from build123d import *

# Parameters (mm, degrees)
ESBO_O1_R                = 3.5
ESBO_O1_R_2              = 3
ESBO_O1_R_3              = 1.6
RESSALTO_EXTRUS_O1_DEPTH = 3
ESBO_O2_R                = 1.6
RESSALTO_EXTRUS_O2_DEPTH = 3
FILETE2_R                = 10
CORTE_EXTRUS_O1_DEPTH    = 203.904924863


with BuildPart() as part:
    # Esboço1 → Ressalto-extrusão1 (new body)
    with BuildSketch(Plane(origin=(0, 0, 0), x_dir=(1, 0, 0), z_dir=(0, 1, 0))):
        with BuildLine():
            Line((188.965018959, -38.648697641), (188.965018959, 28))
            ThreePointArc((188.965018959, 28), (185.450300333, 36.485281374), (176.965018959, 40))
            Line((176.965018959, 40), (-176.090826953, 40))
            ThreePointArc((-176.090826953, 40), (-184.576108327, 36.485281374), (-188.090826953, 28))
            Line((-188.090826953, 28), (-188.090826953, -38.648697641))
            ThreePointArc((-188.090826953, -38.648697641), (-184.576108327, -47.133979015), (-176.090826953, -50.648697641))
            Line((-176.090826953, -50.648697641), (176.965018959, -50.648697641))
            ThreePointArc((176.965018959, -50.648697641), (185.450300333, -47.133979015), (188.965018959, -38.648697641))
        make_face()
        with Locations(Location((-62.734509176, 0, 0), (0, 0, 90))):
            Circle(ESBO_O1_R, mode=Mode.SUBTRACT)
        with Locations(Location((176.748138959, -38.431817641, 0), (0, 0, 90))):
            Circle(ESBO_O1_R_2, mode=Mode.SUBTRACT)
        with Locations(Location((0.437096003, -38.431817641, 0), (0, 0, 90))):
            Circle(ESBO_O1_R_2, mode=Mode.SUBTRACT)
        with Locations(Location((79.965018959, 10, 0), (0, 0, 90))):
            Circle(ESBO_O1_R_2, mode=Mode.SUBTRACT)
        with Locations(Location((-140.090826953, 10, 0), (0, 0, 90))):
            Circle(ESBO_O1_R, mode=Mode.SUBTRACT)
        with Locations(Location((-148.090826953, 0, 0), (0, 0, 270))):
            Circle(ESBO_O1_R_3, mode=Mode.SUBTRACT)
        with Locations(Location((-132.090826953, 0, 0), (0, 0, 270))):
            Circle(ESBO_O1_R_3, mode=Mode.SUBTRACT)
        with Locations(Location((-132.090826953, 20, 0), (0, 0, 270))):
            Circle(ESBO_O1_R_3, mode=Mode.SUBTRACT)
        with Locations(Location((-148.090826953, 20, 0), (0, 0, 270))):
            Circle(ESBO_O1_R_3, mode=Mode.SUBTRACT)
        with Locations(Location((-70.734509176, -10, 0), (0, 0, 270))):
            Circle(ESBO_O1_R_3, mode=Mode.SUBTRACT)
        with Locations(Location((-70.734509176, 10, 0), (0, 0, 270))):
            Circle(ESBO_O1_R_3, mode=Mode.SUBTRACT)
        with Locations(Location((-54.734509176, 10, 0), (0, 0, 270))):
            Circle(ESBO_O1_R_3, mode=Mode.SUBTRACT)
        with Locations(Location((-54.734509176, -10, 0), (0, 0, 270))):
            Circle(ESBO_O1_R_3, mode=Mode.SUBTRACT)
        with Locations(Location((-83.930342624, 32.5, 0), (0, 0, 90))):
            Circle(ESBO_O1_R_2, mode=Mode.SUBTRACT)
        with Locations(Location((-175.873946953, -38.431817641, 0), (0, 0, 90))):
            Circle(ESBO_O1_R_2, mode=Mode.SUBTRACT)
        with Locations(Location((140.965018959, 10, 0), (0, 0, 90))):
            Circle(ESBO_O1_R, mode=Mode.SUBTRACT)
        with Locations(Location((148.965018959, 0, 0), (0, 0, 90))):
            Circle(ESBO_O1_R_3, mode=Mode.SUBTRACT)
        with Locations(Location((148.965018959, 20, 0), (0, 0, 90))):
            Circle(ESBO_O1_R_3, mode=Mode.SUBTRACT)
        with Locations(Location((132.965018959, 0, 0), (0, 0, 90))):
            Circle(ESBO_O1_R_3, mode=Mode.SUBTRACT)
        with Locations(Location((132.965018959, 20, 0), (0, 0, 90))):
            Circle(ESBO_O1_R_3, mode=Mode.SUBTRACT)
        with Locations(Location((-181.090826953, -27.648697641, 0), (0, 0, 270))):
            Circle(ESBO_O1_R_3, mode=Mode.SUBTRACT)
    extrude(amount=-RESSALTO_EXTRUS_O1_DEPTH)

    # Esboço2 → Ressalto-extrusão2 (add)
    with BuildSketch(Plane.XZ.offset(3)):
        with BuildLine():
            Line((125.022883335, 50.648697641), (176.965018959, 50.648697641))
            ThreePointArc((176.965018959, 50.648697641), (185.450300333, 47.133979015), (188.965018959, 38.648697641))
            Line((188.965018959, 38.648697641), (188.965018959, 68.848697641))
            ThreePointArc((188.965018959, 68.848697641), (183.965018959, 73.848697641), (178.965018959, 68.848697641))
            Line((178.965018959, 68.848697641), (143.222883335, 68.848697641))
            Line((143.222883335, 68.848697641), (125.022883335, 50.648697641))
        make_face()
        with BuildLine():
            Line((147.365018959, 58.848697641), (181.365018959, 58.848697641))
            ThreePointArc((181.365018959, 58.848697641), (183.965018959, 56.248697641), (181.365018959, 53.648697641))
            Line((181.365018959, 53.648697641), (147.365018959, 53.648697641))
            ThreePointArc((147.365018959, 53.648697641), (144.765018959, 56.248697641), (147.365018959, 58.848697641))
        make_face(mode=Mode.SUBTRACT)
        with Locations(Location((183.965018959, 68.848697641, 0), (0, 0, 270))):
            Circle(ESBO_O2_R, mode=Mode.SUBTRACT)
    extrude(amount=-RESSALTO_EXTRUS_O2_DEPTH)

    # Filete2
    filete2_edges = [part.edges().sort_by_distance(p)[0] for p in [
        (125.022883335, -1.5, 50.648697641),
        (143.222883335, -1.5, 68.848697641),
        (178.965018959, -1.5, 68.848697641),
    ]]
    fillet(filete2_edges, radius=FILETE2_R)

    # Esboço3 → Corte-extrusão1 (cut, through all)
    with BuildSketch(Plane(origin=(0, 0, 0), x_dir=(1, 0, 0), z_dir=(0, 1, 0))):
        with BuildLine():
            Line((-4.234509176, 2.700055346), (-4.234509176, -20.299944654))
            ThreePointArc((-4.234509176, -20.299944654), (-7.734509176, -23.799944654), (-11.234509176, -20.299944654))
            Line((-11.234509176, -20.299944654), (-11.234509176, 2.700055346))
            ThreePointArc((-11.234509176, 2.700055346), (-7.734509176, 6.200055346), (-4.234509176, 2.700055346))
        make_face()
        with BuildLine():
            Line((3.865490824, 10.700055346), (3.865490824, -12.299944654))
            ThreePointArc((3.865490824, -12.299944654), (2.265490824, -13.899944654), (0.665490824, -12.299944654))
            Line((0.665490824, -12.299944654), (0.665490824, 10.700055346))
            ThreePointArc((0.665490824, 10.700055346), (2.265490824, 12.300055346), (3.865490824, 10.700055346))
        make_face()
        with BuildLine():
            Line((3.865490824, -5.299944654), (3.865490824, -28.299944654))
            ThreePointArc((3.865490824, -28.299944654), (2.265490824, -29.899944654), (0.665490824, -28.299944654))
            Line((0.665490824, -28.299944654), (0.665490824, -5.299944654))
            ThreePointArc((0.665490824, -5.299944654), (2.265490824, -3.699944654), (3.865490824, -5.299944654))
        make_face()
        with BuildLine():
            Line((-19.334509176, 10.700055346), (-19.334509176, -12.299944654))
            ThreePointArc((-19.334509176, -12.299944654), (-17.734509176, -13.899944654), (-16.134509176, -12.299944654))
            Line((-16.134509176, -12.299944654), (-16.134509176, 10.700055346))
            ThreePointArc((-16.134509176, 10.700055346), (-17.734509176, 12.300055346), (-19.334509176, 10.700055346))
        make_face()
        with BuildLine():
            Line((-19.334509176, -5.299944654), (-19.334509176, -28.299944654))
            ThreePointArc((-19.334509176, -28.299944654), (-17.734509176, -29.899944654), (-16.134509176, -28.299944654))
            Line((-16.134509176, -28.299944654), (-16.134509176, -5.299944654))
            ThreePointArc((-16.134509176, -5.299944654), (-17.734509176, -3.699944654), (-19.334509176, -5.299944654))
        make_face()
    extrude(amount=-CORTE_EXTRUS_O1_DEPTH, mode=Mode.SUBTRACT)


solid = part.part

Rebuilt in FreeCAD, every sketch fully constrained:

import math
import FreeCAD as App
import Part
import Sketcher
Q = App.Units.Quantity


def edges_at(feature, points):
    """Names of the edges that pass closest to the given points."""
    edges = feature.Shape.Edges
    near = lambda p: min(range(len(edges)), key=lambda i: edges[i].distToShape(Part.Vertex(*p))[0])
    return sorted({f"Edge{near(p) + 1}" for p in points})

doc = App.newDocument("Part")
body = doc.addObject("PartDesign::Body", "Body")

# Sketch on XZ plane
sketch1 = body.newObject("Sketcher::SketchObject", "Sketch")
sketch1.AttachmentSupport = (doc.getObject("XZ_Plane"), [""])
sketch1.MapMode = "FlatFace"
sketch1.addGeometry(Part.LineSegment(App.Vector(189, 38.6, 0), App.Vector(189, -28, 0)), False)
sketch1.addGeometry(Part.ArcOfCircle(Part.Circle(App.Vector(177, -28, 0), App.Vector(0, 0, 1), 12), math.radians(-90), math.radians(0)), False)
sketch1.addGeometry(Part.LineSegment(App.Vector(177, -40, 0), App.Vector(-176.1, -40, 0)), False)
sketch1.addGeometry(Part.ArcOfCircle(Part.Circle(App.Vector(-176.1, -28, 0), App.Vector(0, 0, 1), 12), math.radians(-180), math.radians(-90)), False)
sketch1.addGeometry(Part.LineSegment(App.Vector(-188.1, -28, 0), App.Vector(-188.1, 38.6, 0)), False)
sketch1.addGeometry(Part.ArcOfCircle(Part.Circle(App.Vector(-176.1, 38.6, 0), App.Vector(0, 0, 1), 12), math.radians(90), math.radians(180)), False)
sketch1.addGeometry(Part.LineSegment(App.Vector(-176.1, 50.6, 0), App.Vector(177, 50.6, 0)), False)
sketch1.addGeometry(Part.ArcOfCircle(Part.Circle(App.Vector(177, 38.6, 0), App.Vector(0, 0, 1), 12), math.radians(0), math.radians(90)), False)
sketch1.addGeometry(Part.Circle(App.Vector(-175.9, 38.4, 0), App.Vector(0, 0, 1), 3), False)
sketch1.addGeometry(Part.Circle(App.Vector(-181.1, 27.6, 0), App.Vector(0, 0, 1), 1.6), False)
sketch1.addGeometry(Part.Circle(App.Vector(-70.7, 10, 0), App.Vector(0, 0, 1), 1.6), False)
sketch1.addGeometry(Part.Circle(App.Vector(-54.7, 10, 0), App.Vector(0, 0, 1), 1.6), False)
sketch1.addGeometry(Part.Circle(App.Vector(0.4, 38.4, 0), App.Vector(0, 0, 1), 3), False)
sketch1.addGeometry(Part.Circle(App.Vector(176.7, 38.4, 0), App.Vector(0, 0, 1), 3), False)
sketch1.addGeometry(Part.Circle(App.Vector(-148.1, 0, 0), App.Vector(0, 0, 1), 1.6), False)
sketch1.addGeometry(Part.Circle(App.Vector(-132.1, 0, 0), App.Vector(0, 0, 1), 1.6), False)
sketch1.addGeometry(Part.Circle(App.Vector(-140.1, -10, 0), App.Vector(0, 0, 1), 3.5), False)
sketch1.addGeometry(Part.Circle(App.Vector(-62.7, 0, 0), App.Vector(0, 0, 1), 3.5), False)
sketch1.addGeometry(Part.Circle(App.Vector(-70.7, -10, 0), App.Vector(0, 0, 1), 1.6), False)
sketch1.addGeometry(Part.Circle(App.Vector(-54.7, -10, 0), App.Vector(0, 0, 1), 1.6), False)
sketch1.addGeometry(Part.Circle(App.Vector(-148.1, -20, 0), App.Vector(0, 0, 1), 1.6), False)
sketch1.addGeometry(Part.Circle(App.Vector(-132.1, -20, 0), App.Vector(0, 0, 1), 1.6), False)
sketch1.addGeometry(Part.Circle(App.Vector(-83.9, -32.5, 0), App.Vector(0, 0, 1), 3), False)
sketch1.addGeometry(Part.Circle(App.Vector(80, -10, 0), App.Vector(0, 0, 1), 3), False)
sketch1.addGeometry(Part.Circle(App.Vector(133, 0, 0), App.Vector(0, 0, 1), 1.6), False)
sketch1.addGeometry(Part.Circle(App.Vector(149, 0, 0), App.Vector(0, 0, 1), 1.6), False)
sketch1.addGeometry(Part.Circle(App.Vector(141, -10, 0), App.Vector(0, 0, 1), 3.5), False)
sketch1.addGeometry(Part.Circle(App.Vector(133, -20, 0), App.Vector(0, 0, 1), 1.6), False)
sketch1.addGeometry(Part.Circle(App.Vector(149, -20, 0), App.Vector(0, 0, 1), 1.6), False)
sketch1.addConstraint(Sketcher.Constraint("Tangent", 0, 2, 1, 2))
sketch1.addConstraint(Sketcher.Constraint("Tangent", 1, 1, 2, 1))
sketch1.addConstraint(Sketcher.Constraint("Tangent", 2, 2, 3, 2))
sketch1.addConstraint(Sketcher.Constraint("Tangent", 3, 1, 4, 1))
sketch1.addConstraint(Sketcher.Constraint("Tangent", 4, 2, 5, 2))
sketch1.addConstraint(Sketcher.Constraint("Tangent", 5, 1, 6, 1))
sketch1.addConstraint(Sketcher.Constraint("Tangent", 6, 2, 7, 2))
sketch1.addConstraint(Sketcher.Constraint("Tangent", 7, 1, 0, 1))
sketch1.addConstraint(Sketcher.Constraint("Vertical", 0))
sketch1.addConstraint(Sketcher.Constraint("Horizontal", 2))
sketch1.addConstraint(Sketcher.Constraint("Vertical", 4))
sketch1.addConstraint(Sketcher.Constraint("Horizontal", 6))
sketch1.addConstraint(Sketcher.Constraint("Equal", 1, 3))
sketch1.addConstraint(Sketcher.Constraint("Equal", 3, 5))
sketch1.addConstraint(Sketcher.Constraint("Equal", 5, 7))
sketch1.addConstraint(Sketcher.Constraint("Equal", 9, 10))
sketch1.addConstraint(Sketcher.Constraint("Equal", 10, 11))
sketch1.addConstraint(Sketcher.Constraint("Equal", 8, 12))
sketch1.addConstraint(Sketcher.Constraint("Equal", 12, 13))
sketch1.addConstraint(Sketcher.Constraint("Equal", 11, 14))
sketch1.addConstraint(Sketcher.Constraint("Equal", 14, 15))
sketch1.addConstraint(Sketcher.Constraint("Equal", 16, 17))
sketch1.addConstraint(Sketcher.Constraint("Equal", 15, 18))
sketch1.addConstraint(Sketcher.Constraint("Equal", 18, 19))
sketch1.addConstraint(Sketcher.Constraint("Equal", 19, 20))
sketch1.addConstraint(Sketcher.Constraint("Equal", 20, 21))
sketch1.addConstraint(Sketcher.Constraint("Equal", 13, 22))
sketch1.addConstraint(Sketcher.Constraint("Equal", 22, 23))
sketch1.addConstraint(Sketcher.Constraint("Equal", 21, 24))
sketch1.addConstraint(Sketcher.Constraint("Equal", 24, 25))
sketch1.addConstraint(Sketcher.Constraint("Equal", 17, 26))
sketch1.addConstraint(Sketcher.Constraint("Equal", 25, 27))
sketch1.addConstraint(Sketcher.Constraint("Equal", 27, 28))
sketch1.addConstraint(Sketcher.Constraint("Symmetric", 10, 3, 18, 3, -1))
sketch1.addConstraint(Sketcher.Constraint("Symmetric", 11, 3, 19, 3, -1))
sketch1.addConstraint(Sketcher.Constraint("PointOnObject", 14, 3, -1))
sketch1.addConstraint(Sketcher.Constraint("PointOnObject", 15, 3, -1))
sketch1.addConstraint(Sketcher.Constraint("PointOnObject", 17, 3, -1))
sketch1.addConstraint(Sketcher.Constraint("PointOnObject", 24, 3, -1))
sketch1.addConstraint(Sketcher.Constraint("PointOnObject", 25, 3, -1))
sketch1.addConstraint(Sketcher.Constraint("Horizontal", 10, 3, 11, 3))
sketch1.addConstraint(Sketcher.Constraint("Horizontal", 8, 3, 12, 3))
sketch1.addConstraint(Sketcher.Constraint("Horizontal", 12, 3, 13, 3))
sketch1.addConstraint(Sketcher.Constraint("Horizontal", 16, 3, 18, 3))
sketch1.addConstraint(Sketcher.Constraint("Horizontal", 20, 3, 21, 3))
sketch1.addConstraint(Sketcher.Constraint("Horizontal", 19, 3, 23, 3))
sketch1.addConstraint(Sketcher.Constraint("Horizontal", 23, 3, 26, 3))
sketch1.addConstraint(Sketcher.Constraint("Horizontal", 21, 3, 27, 3))
sketch1.addConstraint(Sketcher.Constraint("Horizontal", 27, 3, 28, 3))
sketch1.addConstraint(Sketcher.Constraint("Vertical", 14, 3, 20, 3))
sketch1.addConstraint(Sketcher.Constraint("Vertical", 15, 3, 21, 3))
sketch1.addConstraint(Sketcher.Constraint("Vertical", 24, 3, 27, 3))
sketch1.addConstraint(Sketcher.Constraint("Vertical", 25, 3, 28, 3))
sketch1.addConstraint(Sketcher.Constraint("Diameter", 8, Q("6 mm")))
sketch1.addConstraint(Sketcher.Constraint("Diameter", 16, Q("7 mm")))
sketch1.addConstraint(Sketcher.Constraint("Radius", 1, Q("12 mm")))
sketch1.addConstraint(Sketcher.Constraint("Diameter", 9, Q("3.2 mm")))
sketch1.addConstraint(Sketcher.Constraint("DistanceY", 1, 3, -1, 1, Q("28 mm")))
sketch1.addConstraint(Sketcher.Constraint("DistanceY", -1, 1, 10, 3, Q("10 mm")))
sketch1.addConstraint(Sketcher.Constraint("DistanceY", 20, 3, -1, 1, Q("20 mm")))
sketch1.addConstraint(Sketcher.Constraint("DistanceX", 9, 3, 5, 3, Q("5 mm")))
sketch1.addConstraint(Sketcher.Constraint("DistanceY", 9, 3, 5, 3, Q("11 mm")))
sketch1.addConstraint(Sketcher.Constraint("DistanceX", 10, 3, 11, 3, Q("16 mm")))
sketch1.addConstraint(Sketcher.Constraint("DistanceX", 3, 3, 14, 3, Q("28 mm")))
sketch1.addConstraint(Sketcher.Constraint("DistanceX", 14, 3, 15, 3, Q("16 mm")))
sketch1.addConstraint(Sketcher.Constraint("DistanceX", 14, 3, 16, 3, Q("8 mm")))
sketch1.addConstraint(Sketcher.Constraint("DistanceX", 10, 3, 17, 3, Q("8 mm")))
sketch1.addConstraint(Sketcher.Constraint("DistanceX", 23, 3, 1, 3, Q("97 mm")))
sketch1.addConstraint(Sketcher.Constraint("DistanceX", 24, 3, 1, 3, Q("44 mm")))
sketch1.addConstraint(Sketcher.Constraint("DistanceX", 24, 3, 25, 3, Q("16 mm")))
sketch1.addConstraint(Sketcher.Constraint("DistanceX", 24, 3, 26, 3, Q("8 mm")))
sketch1.addConstraint(Sketcher.Constraint("DistanceY", 22, 3, -1, 1, Q("32.5 mm")))
sketch1.addConstraint(Sketcher.Constraint("DistanceX", 2, 2, 2, 1, Q("353.055846 mm")))
sketch1.addConstraint(Sketcher.Constraint("DistanceY", 0, 2, 0, 1, Q("66.648698 mm")))
sketch1.addConstraint(Sketcher.Constraint("DistanceX", -1, 1, 1, 3, Q("176.965019 mm")))
sketch1.addConstraint(Sketcher.Constraint("DistanceX", 10, 3, -1, 1, Q("70.734509 mm")))
sketch1.addConstraint(Sketcher.Constraint("DistanceX", -1, 1, 13, 3, Q("176.748139 mm")))
sketch1.addConstraint(Sketcher.Constraint("DistanceX", 5, 3, 8, 3, Q("0.21688 mm")))
sketch1.addConstraint(Sketcher.Constraint("DistanceY", 8, 3, 5, 3, Q("0.21688 mm")))
sketch1.addConstraint(Sketcher.Constraint("DistanceX", -1, 1, 12, 3, Q("0.437096 mm")))
sketch1.addConstraint(Sketcher.Constraint("DistanceX", 22, 3, -1, 1, Q("83.930343 mm")))
pad1 = body.newObject("PartDesign::Pad", "Pad")
pad1.Profile = sketch1
pad1.Length = 3

# Sketch on XZ plane
sketch2 = body.newObject("Sketcher::SketchObject", "Sketch001")
sketch2.AttachmentSupport = (doc.getObject("XZ_Plane"), [""])
sketch2.MapMode = "FlatFace"
sketch2.AttachmentOffset = App.Placement(App.Vector(0, 0, 3), App.Rotation())
sketch2.addGeometry(Part.LineSegment(App.Vector(125, 50.6, 0), App.Vector(177, 50.6, 0)), False)
sketch2.addGeometry(Part.ArcOfCircle(Part.Circle(App.Vector(177, 38.6, 0), App.Vector(0, 0, 1), 12), math.radians(0), math.radians(90)), False)
sketch2.addGeometry(Part.LineSegment(App.Vector(189, 38.6, 0), App.Vector(189, 68.8, 0)), False)
sketch2.addGeometry(Part.ArcOfCircle(Part.Circle(App.Vector(184, 68.8, 0), App.Vector(0, 0, 1), 5), math.radians(0), math.radians(180)), False)
sketch2.addGeometry(Part.LineSegment(App.Vector(179, 68.8, 0), App.Vector(143.2, 68.8, 0)), False)
sketch2.addGeometry(Part.LineSegment(App.Vector(143.2, 68.8, 0), App.Vector(125, 50.6, 0)), False)
sketch2.addGeometry(Part.ArcOfCircle(Part.Circle(App.Vector(147.4, 56.2, 0), App.Vector(0, 0, 1), 2.6), math.radians(90), math.radians(270)), False)
sketch2.addGeometry(Part.LineSegment(App.Vector(147.4, 58.8, 0), App.Vector(181.4, 58.8, 0)), False)
sketch2.addGeometry(Part.ArcOfCircle(Part.Circle(App.Vector(181.4, 56.2, 0), App.Vector(0, 0, 1), 2.6), math.radians(-90), math.radians(90)), False)
sketch2.addGeometry(Part.LineSegment(App.Vector(181.4, 53.6, 0), App.Vector(147.4, 53.6, 0)), False)
sketch2.addGeometry(Part.Circle(App.Vector(184, 68.8, 0), App.Vector(0, 0, 1), 1.6), False)
sketch2.addConstraint(Sketcher.Constraint("Tangent", 0, 2, 1, 2))
sketch2.addConstraint(Sketcher.Constraint("Tangent", 1, 1, 2, 1))
sketch2.addConstraint(Sketcher.Constraint("Tangent", 2, 2, 3, 1))
sketch2.addConstraint(Sketcher.Constraint("Coincident", 3, 2, 4, 1))
sketch2.addConstraint(Sketcher.Constraint("Coincident", 4, 2, 5, 1))
sketch2.addConstraint(Sketcher.Constraint("Coincident", 5, 2, 0, 1))
sketch2.addConstraint(Sketcher.Constraint("Tangent", 6, 1, 7, 1))
sketch2.addConstraint(Sketcher.Constraint("Tangent", 7, 2, 8, 2))
sketch2.addConstraint(Sketcher.Constraint("Tangent", 8, 1, 9, 1))
sketch2.addConstraint(Sketcher.Constraint("Tangent", 9, 2, 6, 2))
sketch2.addConstraint(Sketcher.Constraint("Horizontal", 0))
sketch2.addConstraint(Sketcher.Constraint("Vertical", 2))
sketch2.addConstraint(Sketcher.Constraint("Horizontal", 4))
sketch2.addConstraint(Sketcher.Constraint("Horizontal", 7))
sketch2.addConstraint(Sketcher.Constraint("Horizontal", 9))
sketch2.addConstraint(Sketcher.Constraint("Coincident", 10, 3, 3, 3))
sketch2.addConstraint(Sketcher.Constraint("Horizontal", 2, 2, 3, 2))
sketch2.addConstraint(Sketcher.Constraint("Radius", 1, Q("12 mm")))
sketch2.addConstraint(Sketcher.Constraint("Radius", 3, Q("5 mm")))
sketch2.addConstraint(Sketcher.Constraint("Diameter", 10, Q("3.2 mm")))
sketch2.addConstraint(Sketcher.Constraint("Radius", 6, Q("2.6 mm")))
sketch2.addConstraint(Sketcher.Constraint("DistanceX", 7, 1, 7, 2, Q("34 mm")))
sketch2.addConstraint(Sketcher.Constraint("Angle", 5, Q("-135 deg")))
sketch2.addConstraint(Sketcher.Constraint("DistanceY", 2, 1, 2, 2, Q("30.2 mm")))
sketch2.addConstraint(Sketcher.Constraint("DistanceY", 6, 1, 4, 2, Q("10 mm")))
sketch2.addConstraint(Sketcher.Constraint("DistanceX", 6, 3, 1, 3, Q("29.6 mm")))
sketch2.addConstraint(Sketcher.Constraint("DistanceX", 0, 1, 0, 2, Q("51.942136 mm")))
sketch2.addConstraint(Sketcher.Constraint("DistanceX", -1, 1, 1, 3, Q("176.965019 mm")))
sketch2.addConstraint(Sketcher.Constraint("DistanceY", -1, 1, 1, 3, Q("38.648698 mm")))
pad2 = body.newObject("PartDesign::Pad", "Pad001")
pad2.Profile = sketch2
pad2.Length = 3
pad2.Reversed = True
doc.recompute()

fillet = body.newObject("PartDesign::Fillet", "Fillet")
fillet.Base = (pad2, edges_at(pad2, [(125.023, -1.5, 50.649), (143.223, -1.5, 68.849), (178.965, -1.5, 68.849)]))
fillet.Radius = 10

# Sketch on XZ plane
sketch3 = body.newObject("Sketcher::SketchObject", "Sketch002")
sketch3.AttachmentSupport = (doc.getObject("XZ_Plane"), [""])
sketch3.MapMode = "FlatFace"
sketch3.addGeometry(Part.LineSegment(App.Vector(-4.2, 20.3, 0), App.Vector(-4.2, -2.7, 0)), False)
sketch3.addGeometry(Part.ArcOfCircle(Part.Circle(App.Vector(-7.7, -2.7, 0), App.Vector(0, 0, 1), 3.5), math.radians(180), math.radians(360)), False)
sketch3.addGeometry(Part.LineSegment(App.Vector(-11.2, -2.7, 0), App.Vector(-11.2, 20.3, 0)), False)
sketch3.addGeometry(Part.ArcOfCircle(Part.Circle(App.Vector(-7.7, 20.3, 0), App.Vector(0, 0, 1), 3.5), math.radians(0), math.radians(180)), False)
sketch3.addGeometry(Part.ArcOfCircle(Part.Circle(App.Vector(2.3, -10.7, 0), App.Vector(0, 0, 1), 1.6), math.radians(180), math.radians(360)), False)
sketch3.addGeometry(Part.LineSegment(App.Vector(0.7, -10.7, 0), App.Vector(0.7, 28.3, 0)), False)
sketch3.addGeometry(Part.ArcOfCircle(Part.Circle(App.Vector(2.3, 28.3, 0), App.Vector(0, 0, 1), 1.6), math.radians(0), math.radians(180)), False)
sketch3.addGeometry(Part.LineSegment(App.Vector(3.9, 28.3, 0), App.Vector(3.9, -10.7, 0)), False)
sketch3.addGeometry(Part.ArcOfCircle(Part.Circle(App.Vector(-17.7, -10.7, 0), App.Vector(0, 0, 1), 1.6), math.radians(180), math.radians(360)), False)
sketch3.addGeometry(Part.LineSegment(App.Vector(-19.3, -10.7, 0), App.Vector(-19.3, 28.3, 0)), False)
sketch3.addGeometry(Part.ArcOfCircle(Part.Circle(App.Vector(-17.7, 28.3, 0), App.Vector(0, 0, 1), 1.6), math.radians(0), math.radians(180)), False)
sketch3.addGeometry(Part.LineSegment(App.Vector(-16.1, 28.3, 0), App.Vector(-16.1, -10.7, 0)), False)
sketch3.addConstraint(Sketcher.Constraint("Tangent", 0, 2, 1, 2))
sketch3.addConstraint(Sketcher.Constraint("Tangent", 1, 1, 2, 1))
sketch3.addConstraint(Sketcher.Constraint("Tangent", 2, 2, 3, 2))
sketch3.addConstraint(Sketcher.Constraint("Tangent", 3, 1, 0, 1))
sketch3.addConstraint(Sketcher.Constraint("Tangent", 4, 1, 5, 1))
sketch3.addConstraint(Sketcher.Constraint("Tangent", 5, 2, 6, 2))
sketch3.addConstraint(Sketcher.Constraint("Tangent", 6, 1, 7, 1))
sketch3.addConstraint(Sketcher.Constraint("Tangent", 7, 2, 4, 2))
sketch3.addConstraint(Sketcher.Constraint("Tangent", 8, 1, 9, 1))
sketch3.addConstraint(Sketcher.Constraint("Tangent", 9, 2, 10, 2))
sketch3.addConstraint(Sketcher.Constraint("Tangent", 10, 1, 11, 1))
sketch3.addConstraint(Sketcher.Constraint("Tangent", 11, 2, 8, 2))
sketch3.addConstraint(Sketcher.Constraint("Vertical", 0))
sketch3.addConstraint(Sketcher.Constraint("Vertical", 2))
sketch3.addConstraint(Sketcher.Constraint("Vertical", 5))
sketch3.addConstraint(Sketcher.Constraint("Vertical", 7))
sketch3.addConstraint(Sketcher.Constraint("Vertical", 9))
sketch3.addConstraint(Sketcher.Constraint("Vertical", 11))
sketch3.addConstraint(Sketcher.Constraint("Equal", 6, 8))
sketch3.addConstraint(Sketcher.Constraint("Horizontal", 4, 3, 8, 3))
sketch3.addConstraint(Sketcher.Constraint("Horizontal", 6, 3, 10, 3))
sketch3.addConstraint(Sketcher.Constraint("Radius", 1, Q("3.5 mm")))
sketch3.addConstraint(Sketcher.Constraint("Radius", 4, Q("1.6 mm")))
sketch3.addConstraint(Sketcher.Constraint("DistanceY", 0, 2, 0, 1, Q("23 mm")))
sketch3.addConstraint(Sketcher.Constraint("DistanceY", 5, 1, 5, 2, Q("39 mm")))
sketch3.addConstraint(Sketcher.Constraint("DistanceX", 1, 3, 4, 3, Q("10 mm")))
sketch3.addConstraint(Sketcher.Constraint("DistanceY", 4, 3, 1, 3, Q("8 mm")))
sketch3.addConstraint(Sketcher.Constraint("DistanceX", 8, 3, 1, 3, Q("10 mm")))
sketch3.addConstraint(Sketcher.Constraint("DistanceX", 1, 3, -1, 1, Q("7.734509 mm")))
sketch3.addConstraint(Sketcher.Constraint("DistanceY", 1, 3, -1, 1, Q("2.700055 mm")))
pocket1 = body.newObject("PartDesign::Pocket", "Pocket")
pocket1.Profile = sketch3
pocket1.Type = "ThroughAll"
pocket1.Reversed = True

doc.recompute()
